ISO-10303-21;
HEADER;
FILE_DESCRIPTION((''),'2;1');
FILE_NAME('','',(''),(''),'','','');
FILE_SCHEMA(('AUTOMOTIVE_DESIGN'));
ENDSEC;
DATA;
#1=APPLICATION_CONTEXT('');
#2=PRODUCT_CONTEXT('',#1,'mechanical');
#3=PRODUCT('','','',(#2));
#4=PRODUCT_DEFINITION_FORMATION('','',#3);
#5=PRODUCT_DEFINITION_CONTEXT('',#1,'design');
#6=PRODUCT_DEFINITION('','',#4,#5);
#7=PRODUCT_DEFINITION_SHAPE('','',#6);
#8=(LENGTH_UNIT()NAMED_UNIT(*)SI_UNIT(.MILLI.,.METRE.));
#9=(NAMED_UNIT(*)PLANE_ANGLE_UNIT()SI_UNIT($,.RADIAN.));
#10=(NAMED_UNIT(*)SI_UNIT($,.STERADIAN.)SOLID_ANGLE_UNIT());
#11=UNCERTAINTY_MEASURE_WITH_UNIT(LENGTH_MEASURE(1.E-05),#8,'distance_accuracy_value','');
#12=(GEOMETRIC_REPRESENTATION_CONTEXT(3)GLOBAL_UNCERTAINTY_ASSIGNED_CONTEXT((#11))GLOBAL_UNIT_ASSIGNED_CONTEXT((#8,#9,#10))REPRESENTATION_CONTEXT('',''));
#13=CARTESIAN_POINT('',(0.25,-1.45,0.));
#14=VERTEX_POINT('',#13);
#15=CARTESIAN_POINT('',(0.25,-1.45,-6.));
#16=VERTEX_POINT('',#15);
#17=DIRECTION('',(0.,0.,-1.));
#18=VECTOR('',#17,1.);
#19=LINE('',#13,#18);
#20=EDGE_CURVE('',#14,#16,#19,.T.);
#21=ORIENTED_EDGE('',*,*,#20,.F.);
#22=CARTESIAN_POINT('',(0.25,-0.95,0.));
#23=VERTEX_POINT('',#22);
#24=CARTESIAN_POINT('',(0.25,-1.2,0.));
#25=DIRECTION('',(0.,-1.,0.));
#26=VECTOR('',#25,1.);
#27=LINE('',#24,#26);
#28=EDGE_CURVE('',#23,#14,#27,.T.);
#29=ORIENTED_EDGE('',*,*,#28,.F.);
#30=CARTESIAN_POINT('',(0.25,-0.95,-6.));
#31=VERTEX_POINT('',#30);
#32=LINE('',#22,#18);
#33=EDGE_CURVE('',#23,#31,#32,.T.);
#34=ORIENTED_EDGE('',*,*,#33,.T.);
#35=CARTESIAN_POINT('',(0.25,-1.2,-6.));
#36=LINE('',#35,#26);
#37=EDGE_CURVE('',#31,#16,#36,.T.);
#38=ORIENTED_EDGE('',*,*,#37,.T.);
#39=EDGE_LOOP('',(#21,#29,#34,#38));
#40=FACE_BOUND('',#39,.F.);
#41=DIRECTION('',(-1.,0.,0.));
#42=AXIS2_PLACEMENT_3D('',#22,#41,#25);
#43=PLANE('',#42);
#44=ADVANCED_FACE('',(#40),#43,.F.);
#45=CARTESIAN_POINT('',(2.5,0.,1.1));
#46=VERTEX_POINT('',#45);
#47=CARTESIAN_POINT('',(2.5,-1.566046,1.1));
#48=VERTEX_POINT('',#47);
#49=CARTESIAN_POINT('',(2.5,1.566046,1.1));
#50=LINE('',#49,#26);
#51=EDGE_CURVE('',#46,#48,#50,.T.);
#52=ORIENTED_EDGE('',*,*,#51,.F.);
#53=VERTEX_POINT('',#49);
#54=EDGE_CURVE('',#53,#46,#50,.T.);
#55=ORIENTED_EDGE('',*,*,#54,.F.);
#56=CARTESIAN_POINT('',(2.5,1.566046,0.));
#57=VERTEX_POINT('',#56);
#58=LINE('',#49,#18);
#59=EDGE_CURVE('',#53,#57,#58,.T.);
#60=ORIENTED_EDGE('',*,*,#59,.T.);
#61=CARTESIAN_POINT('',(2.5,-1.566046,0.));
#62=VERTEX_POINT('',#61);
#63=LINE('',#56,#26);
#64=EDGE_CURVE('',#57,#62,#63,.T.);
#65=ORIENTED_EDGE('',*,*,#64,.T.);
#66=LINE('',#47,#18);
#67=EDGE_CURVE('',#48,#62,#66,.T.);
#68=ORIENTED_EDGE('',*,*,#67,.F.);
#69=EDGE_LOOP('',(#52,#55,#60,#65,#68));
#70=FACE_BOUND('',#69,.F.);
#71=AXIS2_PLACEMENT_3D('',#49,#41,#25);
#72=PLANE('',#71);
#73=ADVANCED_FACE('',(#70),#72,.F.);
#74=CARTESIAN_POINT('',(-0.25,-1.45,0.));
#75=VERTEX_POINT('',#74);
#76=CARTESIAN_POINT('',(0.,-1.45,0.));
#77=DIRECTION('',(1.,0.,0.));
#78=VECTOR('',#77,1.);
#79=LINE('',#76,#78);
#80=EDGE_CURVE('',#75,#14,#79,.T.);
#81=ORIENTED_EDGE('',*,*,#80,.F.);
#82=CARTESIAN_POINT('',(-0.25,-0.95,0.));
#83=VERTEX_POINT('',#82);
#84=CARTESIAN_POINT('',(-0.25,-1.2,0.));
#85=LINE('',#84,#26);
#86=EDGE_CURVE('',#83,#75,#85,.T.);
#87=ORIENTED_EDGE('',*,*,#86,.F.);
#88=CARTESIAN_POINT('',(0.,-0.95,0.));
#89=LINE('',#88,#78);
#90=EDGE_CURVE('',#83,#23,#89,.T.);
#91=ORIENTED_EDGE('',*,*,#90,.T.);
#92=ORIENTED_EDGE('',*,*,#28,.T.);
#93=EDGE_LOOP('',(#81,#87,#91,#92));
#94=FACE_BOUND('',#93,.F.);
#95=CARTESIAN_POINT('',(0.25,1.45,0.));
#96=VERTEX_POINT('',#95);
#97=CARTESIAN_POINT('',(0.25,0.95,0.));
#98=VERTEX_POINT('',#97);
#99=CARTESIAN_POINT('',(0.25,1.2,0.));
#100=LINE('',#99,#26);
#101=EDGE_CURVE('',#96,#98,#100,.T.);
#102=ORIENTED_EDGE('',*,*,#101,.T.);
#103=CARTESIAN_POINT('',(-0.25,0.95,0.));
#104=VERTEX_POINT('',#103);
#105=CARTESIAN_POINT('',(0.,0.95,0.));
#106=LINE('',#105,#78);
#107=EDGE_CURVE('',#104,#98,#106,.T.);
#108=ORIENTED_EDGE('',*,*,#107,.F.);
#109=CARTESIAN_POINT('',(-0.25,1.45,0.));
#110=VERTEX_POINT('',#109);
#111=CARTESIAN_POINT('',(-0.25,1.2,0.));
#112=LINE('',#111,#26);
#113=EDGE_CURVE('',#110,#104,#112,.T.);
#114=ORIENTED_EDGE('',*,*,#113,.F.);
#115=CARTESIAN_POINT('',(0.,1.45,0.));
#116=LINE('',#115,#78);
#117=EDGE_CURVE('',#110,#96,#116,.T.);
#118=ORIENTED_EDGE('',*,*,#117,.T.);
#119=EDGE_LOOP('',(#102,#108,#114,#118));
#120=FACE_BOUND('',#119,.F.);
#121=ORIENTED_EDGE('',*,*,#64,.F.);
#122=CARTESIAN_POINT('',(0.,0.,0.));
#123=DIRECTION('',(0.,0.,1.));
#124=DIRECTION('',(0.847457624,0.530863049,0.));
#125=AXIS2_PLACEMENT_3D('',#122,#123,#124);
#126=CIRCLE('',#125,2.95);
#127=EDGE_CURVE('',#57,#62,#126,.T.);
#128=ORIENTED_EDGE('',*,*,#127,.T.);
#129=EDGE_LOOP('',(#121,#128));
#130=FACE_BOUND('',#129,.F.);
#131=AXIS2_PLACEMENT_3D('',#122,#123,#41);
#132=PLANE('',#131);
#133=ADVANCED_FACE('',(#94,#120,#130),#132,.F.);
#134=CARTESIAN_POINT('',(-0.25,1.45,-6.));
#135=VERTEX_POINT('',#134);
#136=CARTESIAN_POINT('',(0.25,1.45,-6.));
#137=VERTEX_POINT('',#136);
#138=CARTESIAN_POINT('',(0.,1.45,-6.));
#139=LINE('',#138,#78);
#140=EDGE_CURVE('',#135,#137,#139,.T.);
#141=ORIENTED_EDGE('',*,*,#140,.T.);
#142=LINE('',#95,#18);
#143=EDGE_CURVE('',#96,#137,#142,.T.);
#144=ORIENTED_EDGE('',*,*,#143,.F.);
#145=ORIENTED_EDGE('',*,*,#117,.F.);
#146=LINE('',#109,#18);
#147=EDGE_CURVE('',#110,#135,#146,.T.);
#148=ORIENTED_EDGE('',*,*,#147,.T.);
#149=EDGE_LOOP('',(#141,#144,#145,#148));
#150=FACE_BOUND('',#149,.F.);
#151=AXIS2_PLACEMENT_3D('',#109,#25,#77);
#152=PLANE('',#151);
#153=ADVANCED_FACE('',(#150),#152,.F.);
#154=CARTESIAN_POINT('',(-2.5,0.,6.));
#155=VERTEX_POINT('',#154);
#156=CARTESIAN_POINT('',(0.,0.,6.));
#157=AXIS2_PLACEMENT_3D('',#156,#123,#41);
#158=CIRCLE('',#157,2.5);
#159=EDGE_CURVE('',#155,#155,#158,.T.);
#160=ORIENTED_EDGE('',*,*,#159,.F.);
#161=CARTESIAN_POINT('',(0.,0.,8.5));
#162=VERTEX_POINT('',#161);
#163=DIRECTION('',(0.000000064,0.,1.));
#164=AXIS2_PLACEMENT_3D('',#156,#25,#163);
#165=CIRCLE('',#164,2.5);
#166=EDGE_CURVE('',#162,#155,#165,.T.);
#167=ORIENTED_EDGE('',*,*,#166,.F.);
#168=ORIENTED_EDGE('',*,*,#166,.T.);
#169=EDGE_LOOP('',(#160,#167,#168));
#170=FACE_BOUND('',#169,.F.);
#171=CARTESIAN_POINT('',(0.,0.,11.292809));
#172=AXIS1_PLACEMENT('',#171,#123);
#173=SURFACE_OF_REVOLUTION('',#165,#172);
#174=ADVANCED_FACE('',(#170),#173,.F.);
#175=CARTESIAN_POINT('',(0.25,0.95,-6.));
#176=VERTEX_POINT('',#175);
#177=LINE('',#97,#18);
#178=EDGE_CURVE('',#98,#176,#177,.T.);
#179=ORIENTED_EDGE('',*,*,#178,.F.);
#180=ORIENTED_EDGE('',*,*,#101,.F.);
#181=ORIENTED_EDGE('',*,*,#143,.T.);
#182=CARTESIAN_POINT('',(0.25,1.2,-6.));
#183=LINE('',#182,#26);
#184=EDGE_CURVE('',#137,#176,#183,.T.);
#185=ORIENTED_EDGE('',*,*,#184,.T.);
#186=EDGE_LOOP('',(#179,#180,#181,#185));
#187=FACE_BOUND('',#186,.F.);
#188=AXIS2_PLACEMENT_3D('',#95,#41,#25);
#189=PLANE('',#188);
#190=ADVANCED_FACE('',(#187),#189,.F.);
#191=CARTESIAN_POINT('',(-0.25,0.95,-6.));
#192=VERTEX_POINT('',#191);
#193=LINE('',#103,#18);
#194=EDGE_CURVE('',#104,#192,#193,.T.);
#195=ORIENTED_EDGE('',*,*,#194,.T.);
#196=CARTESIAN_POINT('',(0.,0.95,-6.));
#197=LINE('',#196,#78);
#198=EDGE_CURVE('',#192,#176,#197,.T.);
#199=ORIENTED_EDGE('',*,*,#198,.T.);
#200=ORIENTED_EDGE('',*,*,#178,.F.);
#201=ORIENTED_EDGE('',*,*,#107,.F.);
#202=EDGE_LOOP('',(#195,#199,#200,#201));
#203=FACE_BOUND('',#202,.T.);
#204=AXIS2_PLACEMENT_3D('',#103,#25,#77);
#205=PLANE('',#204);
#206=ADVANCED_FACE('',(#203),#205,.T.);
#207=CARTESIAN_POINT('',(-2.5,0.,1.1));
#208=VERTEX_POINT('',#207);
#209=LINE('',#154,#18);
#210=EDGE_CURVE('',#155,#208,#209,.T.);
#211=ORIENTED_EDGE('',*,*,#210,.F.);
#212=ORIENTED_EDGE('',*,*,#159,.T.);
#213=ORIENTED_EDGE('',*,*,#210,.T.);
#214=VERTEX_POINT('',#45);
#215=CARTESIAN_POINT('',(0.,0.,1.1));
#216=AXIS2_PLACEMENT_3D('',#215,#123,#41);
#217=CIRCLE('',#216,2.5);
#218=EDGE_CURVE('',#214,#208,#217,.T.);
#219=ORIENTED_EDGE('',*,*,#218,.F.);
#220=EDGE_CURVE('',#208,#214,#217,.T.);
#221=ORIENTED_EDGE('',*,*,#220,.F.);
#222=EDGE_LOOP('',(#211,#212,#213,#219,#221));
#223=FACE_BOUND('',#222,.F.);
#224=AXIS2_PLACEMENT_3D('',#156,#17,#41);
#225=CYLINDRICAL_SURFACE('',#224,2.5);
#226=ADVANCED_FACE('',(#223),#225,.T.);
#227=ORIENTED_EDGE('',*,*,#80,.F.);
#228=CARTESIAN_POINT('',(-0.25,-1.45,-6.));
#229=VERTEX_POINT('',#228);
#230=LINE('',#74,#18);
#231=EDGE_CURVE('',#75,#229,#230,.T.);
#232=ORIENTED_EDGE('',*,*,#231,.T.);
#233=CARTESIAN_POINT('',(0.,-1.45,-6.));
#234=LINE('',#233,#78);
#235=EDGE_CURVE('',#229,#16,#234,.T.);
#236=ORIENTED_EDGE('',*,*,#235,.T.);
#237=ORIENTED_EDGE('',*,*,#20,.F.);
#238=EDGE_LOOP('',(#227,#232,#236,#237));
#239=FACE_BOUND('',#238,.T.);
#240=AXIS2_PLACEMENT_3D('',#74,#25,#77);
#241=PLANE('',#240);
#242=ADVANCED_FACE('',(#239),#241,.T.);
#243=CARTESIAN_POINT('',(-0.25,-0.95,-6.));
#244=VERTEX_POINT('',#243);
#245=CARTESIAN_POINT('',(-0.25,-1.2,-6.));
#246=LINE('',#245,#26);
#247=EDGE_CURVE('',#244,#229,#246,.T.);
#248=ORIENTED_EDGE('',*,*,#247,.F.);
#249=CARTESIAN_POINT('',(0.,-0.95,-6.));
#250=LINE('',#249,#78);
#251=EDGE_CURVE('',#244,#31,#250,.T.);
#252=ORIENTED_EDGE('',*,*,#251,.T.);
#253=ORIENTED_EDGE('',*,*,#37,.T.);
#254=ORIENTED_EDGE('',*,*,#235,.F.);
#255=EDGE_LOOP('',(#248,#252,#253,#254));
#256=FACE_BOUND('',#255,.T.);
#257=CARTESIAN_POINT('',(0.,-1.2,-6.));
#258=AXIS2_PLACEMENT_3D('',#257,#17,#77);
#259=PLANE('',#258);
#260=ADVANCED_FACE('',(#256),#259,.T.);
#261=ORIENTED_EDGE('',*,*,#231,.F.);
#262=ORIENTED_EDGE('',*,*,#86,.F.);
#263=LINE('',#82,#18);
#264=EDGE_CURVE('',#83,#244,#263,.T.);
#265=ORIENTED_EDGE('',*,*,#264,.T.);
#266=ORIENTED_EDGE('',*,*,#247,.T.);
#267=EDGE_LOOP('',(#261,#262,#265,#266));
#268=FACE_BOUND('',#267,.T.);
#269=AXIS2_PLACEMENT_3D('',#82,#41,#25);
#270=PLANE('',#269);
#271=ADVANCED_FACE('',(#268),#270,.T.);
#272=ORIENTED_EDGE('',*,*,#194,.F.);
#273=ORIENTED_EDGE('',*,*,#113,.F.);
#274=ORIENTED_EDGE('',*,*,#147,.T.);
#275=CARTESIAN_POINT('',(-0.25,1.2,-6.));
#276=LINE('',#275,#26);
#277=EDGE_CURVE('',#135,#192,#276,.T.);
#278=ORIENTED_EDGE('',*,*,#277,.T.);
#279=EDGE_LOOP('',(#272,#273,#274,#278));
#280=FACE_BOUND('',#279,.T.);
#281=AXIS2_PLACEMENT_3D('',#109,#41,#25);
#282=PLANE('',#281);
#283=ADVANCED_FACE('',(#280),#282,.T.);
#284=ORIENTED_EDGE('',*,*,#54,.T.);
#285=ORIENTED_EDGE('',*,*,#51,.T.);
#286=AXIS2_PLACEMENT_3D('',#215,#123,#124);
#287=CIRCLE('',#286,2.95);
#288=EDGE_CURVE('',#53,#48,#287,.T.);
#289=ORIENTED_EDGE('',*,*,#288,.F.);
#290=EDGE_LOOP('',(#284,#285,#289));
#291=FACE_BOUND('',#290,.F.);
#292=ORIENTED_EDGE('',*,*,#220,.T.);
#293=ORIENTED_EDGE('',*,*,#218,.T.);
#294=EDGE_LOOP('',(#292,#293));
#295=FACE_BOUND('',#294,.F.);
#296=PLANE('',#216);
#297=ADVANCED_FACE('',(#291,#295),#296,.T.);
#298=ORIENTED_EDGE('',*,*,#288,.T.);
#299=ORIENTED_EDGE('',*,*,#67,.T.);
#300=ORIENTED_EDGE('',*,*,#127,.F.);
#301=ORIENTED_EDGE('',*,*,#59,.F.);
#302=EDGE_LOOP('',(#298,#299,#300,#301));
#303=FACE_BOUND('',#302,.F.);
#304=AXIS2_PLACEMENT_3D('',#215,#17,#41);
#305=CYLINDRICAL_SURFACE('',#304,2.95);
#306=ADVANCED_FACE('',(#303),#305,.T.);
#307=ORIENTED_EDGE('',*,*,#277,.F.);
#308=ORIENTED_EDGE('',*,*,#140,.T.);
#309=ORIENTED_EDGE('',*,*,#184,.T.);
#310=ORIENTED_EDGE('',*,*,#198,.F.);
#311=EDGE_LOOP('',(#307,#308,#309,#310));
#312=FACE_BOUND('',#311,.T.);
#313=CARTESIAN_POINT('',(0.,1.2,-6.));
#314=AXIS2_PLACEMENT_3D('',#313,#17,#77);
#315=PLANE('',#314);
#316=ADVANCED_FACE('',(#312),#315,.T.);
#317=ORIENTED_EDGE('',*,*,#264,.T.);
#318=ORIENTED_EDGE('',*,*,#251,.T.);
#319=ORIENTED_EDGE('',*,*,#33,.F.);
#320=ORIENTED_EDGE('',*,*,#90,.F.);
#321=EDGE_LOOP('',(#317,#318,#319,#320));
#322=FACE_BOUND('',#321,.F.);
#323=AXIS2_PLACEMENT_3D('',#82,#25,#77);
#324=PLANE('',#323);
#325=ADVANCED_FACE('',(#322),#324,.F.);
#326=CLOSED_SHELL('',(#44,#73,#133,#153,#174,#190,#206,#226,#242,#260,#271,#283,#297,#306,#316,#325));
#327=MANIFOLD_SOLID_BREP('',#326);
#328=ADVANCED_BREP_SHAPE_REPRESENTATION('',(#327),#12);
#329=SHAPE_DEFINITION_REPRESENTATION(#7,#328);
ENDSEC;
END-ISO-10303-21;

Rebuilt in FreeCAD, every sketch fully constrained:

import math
import FreeCAD as App
import Part
import Sketcher

V = App.Vector
Q = App.Units.Quantity


def add_polygon(sketch, points):
    """Adds a closed chain of lines whose ends are joined by coincident constraints."""
    first, n = sketch.GeometryCount, len(points)
    for a, b in zip(points, points[1:] + points[:1]):
        sketch.addGeometry(Part.LineSegment(App.Vector(*a, 0), App.Vector(*b, 0)), False)
    for i in range(n):
        sketch.addConstraint(Sketcher.Constraint("Coincident", first + i, 2, first + (i + 1) % n, 1))

doc = App.newDocument("Part")
body = doc.addObject("PartDesign::Body", "Body")

sketch1 = doc.addObject("Sketcher::SketchObject", "Sketch")
body.addObject(sketch1)
sketch1.AttachmentSupport = (doc.XZ_Plane, [""])
sketch1.MapMode = "FlatFace"
sketch1.addGeometry([
    Part.LineSegment(V(0, 0, 0), V(0, 8.5, 0)),
    Part.ArcOfCircle(Part.Circle(V(0, 6, 0), V(0, 0, 1), 2.5), math.radians(89.999996), math.radians(180.000004)),
    Part.LineSegment(V(-2.5, 6, 0), V(-2.5, 1.1, 0)),
    Part.LineSegment(V(-2.5, 1.1, 0), V(-2.95, 1.1, 0)),
    Part.LineSegment(V(-2.95, 1.1, 0), V(-2.95, 0, 0)),
    Part.LineSegment(V(-2.95, 0, 0), V(0, 0, 0)),
], False)
sketch1.addConstraint([
    Sketcher.Constraint("Coincident", 0, 2, 1, 1),
    Sketcher.Constraint("Tangent", 1, 2, 2, 1),
    Sketcher.Constraint("Coincident", 2, 2, 3, 1),
    Sketcher.Constraint("Coincident", 3, 2, 4, 1),
    Sketcher.Constraint("Coincident", 4, 2, 5, 1),
    Sketcher.Constraint("Coincident", 5, 2, 0, 1),
    Sketcher.Constraint("Vertical", 0),
    Sketcher.Constraint("Vertical", 2),
    Sketcher.Constraint("Horizontal", 3),
    Sketcher.Constraint("Vertical", 4),
    Sketcher.Constraint("Horizontal", 5),
    Sketcher.Constraint("Coincident", 5, 2, -1, 1),
    Sketcher.Constraint("PointOnObject", 1, 3, -2),
    Sketcher.Constraint("Radius", 1, Q("2.5 mm")),
    Sketcher.Constraint("DistanceY", 0, 1, 0, 2, Q("8.5 mm")),
    Sketcher.Constraint("DistanceY", 2, 2, 2, 1, Q("4.9 mm")),
    Sketcher.Constraint("DistanceX", 3, 2, 3, 1, Q("0.45 mm")),
])
revolution = doc.addObject("PartDesign::Revolution", "Revolution")
body.addObject(revolution)
revolution.Profile = sketch1
revolution.ReferenceAxis = (sketch1, ["V_Axis"])
revolution.Angle = 360

sketch2 = doc.addObject("Sketcher::SketchObject", "Sketch001")
body.addObject(sketch2)
sketch2.AttachmentSupport = (doc.XY_Plane, [""])
sketch2.MapMode = "FlatFace"
sketch2.AttachmentOffset = App.Placement(V(0, 0, 1.1), App.Rotation())
sketch2.addGeometry([
    Part.LineSegment(V(2.5, 1.566046, 0), V(2.5, -1.566046, 0)),
    Part.ArcOfCircle(Part.Circle(V(0, 0, 0), V(0, 0, 1), 2.95), math.radians(-32.063785), math.radians(32.063785)),
], False)
sketch2.addConstraint([
    Sketcher.Constraint("Coincident", 0, 1, 1, 2),
    Sketcher.Constraint("Coincident", 1, 1, 0, 2),
    Sketcher.Constraint("Vertical", 0),
    Sketcher.Constraint("Coincident", 1, 3, -1, 1),
    Sketcher.Constraint("Radius", 1, Q("2.95 mm")),
    Sketcher.Constraint("DistanceX", -1, 1, 0, 1, Q("2.5 mm")),
])
pocket1 = doc.addObject("PartDesign::Pocket", "Pocket")
body.addObject(pocket1)
pocket1.Profile = sketch2
pocket1.Type = "ThroughAll"

sketch3 = doc.addObject("Sketcher::SketchObject", "Sketch002")
body.addObject(sketch3)
sketch3.AttachmentSupport = (doc.XY_Plane, [""])
sketch3.MapMode = "FlatFace"
add_polygon(sketch3, [(-0.25, -1.45), (-0.25, -0.95), (0.25, -0.95), (0.25, -1.45)])
add_polygon(sketch3, [(-0.25, 0.95), (-0.25, 1.45), (0.25, 1.45), (0.25, 0.95)])
sketch3.addConstraint([
    Sketcher.Constraint("Vertical", 0),
    Sketcher.Constraint("Horizontal", 1),
    Sketcher.Constraint("Vertical", 2),
    Sketcher.Constraint("Horizontal", 3),
    Sketcher.Constraint("Vertical", 4),
    Sketcher.Constraint("Horizontal", 5),
    Sketcher.Constraint("Vertical", 6),
    Sketcher.Constraint("Horizontal", 7),
    Sketcher.Constraint("Symmetric", 2, 2, 4, 2, -1, 1),
    Sketcher.Constraint("Symmetric", 0, 2, 6, 2, -1, 1),
    Sketcher.Constraint("Vertical", 3, 2, 4, 2),
    Sketcher.Constraint("Equal", 7, 0),
    Sketcher.Constraint("DistanceX", 1, 1, 1, 2, Q("0.5 mm")),
    Sketcher.Constraint("DistanceY", 0, 2, 4, 2, Q("2.4 mm")),
])
pad1 = doc.addObject("PartDesign::Pad", "Pad")
body.addObject(pad1)
pad1.Profile = sketch3
pad1.Length = 6
pad1.Reversed = True

doc.recompute()
